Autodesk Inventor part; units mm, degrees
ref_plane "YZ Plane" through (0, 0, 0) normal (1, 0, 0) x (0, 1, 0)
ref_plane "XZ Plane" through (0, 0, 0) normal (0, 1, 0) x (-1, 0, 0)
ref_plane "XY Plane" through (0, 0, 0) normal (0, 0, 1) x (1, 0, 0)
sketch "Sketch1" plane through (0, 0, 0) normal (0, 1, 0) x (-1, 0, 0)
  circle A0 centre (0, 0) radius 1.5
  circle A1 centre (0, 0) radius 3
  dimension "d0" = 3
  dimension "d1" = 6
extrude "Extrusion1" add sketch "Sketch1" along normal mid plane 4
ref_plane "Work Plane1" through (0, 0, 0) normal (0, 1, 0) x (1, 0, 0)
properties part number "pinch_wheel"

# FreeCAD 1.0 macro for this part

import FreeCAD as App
import Part
import Sketcher

V = App.Vector

doc = App.newDocument("Part")
body = doc.addObject("PartDesign::Body", "Body")

sketch1 = doc.addObject("Sketcher::SketchObject", "Sketch")
body.addObject(sketch1)
sketch1.AttachmentSupport = (doc.XZ_Plane, [""])
sketch1.MapMode = "FlatFace"
sketch1.addGeometry(Part.Circle(V(0, 0, 0), V(0, 0, 1), 3), False)
sketch1.addGeometry(Part.Circle(V(0, 0, 0), V(0, 0, 1), 1.5), False)
sketch1.addConstraint(Sketcher.Constraint("Coincident", 0, 3, -1, 1))
sketch1.addConstraint(Sketcher.Constraint("Coincident", 1, 3, -1, 1))
sketch1.addConstraint(Sketcher.Constraint("Diameter", 0, 6.0))
sketch1.addConstraint(Sketcher.Constraint("Diameter", 1, 3.0))
pad1 = doc.addObject("PartDesign::Pad", "Pad")
body.addObject(pad1)
pad1.Profile = sketch1
pad1.Length = 4
pad1.Midplane = True

doc.recompute()
